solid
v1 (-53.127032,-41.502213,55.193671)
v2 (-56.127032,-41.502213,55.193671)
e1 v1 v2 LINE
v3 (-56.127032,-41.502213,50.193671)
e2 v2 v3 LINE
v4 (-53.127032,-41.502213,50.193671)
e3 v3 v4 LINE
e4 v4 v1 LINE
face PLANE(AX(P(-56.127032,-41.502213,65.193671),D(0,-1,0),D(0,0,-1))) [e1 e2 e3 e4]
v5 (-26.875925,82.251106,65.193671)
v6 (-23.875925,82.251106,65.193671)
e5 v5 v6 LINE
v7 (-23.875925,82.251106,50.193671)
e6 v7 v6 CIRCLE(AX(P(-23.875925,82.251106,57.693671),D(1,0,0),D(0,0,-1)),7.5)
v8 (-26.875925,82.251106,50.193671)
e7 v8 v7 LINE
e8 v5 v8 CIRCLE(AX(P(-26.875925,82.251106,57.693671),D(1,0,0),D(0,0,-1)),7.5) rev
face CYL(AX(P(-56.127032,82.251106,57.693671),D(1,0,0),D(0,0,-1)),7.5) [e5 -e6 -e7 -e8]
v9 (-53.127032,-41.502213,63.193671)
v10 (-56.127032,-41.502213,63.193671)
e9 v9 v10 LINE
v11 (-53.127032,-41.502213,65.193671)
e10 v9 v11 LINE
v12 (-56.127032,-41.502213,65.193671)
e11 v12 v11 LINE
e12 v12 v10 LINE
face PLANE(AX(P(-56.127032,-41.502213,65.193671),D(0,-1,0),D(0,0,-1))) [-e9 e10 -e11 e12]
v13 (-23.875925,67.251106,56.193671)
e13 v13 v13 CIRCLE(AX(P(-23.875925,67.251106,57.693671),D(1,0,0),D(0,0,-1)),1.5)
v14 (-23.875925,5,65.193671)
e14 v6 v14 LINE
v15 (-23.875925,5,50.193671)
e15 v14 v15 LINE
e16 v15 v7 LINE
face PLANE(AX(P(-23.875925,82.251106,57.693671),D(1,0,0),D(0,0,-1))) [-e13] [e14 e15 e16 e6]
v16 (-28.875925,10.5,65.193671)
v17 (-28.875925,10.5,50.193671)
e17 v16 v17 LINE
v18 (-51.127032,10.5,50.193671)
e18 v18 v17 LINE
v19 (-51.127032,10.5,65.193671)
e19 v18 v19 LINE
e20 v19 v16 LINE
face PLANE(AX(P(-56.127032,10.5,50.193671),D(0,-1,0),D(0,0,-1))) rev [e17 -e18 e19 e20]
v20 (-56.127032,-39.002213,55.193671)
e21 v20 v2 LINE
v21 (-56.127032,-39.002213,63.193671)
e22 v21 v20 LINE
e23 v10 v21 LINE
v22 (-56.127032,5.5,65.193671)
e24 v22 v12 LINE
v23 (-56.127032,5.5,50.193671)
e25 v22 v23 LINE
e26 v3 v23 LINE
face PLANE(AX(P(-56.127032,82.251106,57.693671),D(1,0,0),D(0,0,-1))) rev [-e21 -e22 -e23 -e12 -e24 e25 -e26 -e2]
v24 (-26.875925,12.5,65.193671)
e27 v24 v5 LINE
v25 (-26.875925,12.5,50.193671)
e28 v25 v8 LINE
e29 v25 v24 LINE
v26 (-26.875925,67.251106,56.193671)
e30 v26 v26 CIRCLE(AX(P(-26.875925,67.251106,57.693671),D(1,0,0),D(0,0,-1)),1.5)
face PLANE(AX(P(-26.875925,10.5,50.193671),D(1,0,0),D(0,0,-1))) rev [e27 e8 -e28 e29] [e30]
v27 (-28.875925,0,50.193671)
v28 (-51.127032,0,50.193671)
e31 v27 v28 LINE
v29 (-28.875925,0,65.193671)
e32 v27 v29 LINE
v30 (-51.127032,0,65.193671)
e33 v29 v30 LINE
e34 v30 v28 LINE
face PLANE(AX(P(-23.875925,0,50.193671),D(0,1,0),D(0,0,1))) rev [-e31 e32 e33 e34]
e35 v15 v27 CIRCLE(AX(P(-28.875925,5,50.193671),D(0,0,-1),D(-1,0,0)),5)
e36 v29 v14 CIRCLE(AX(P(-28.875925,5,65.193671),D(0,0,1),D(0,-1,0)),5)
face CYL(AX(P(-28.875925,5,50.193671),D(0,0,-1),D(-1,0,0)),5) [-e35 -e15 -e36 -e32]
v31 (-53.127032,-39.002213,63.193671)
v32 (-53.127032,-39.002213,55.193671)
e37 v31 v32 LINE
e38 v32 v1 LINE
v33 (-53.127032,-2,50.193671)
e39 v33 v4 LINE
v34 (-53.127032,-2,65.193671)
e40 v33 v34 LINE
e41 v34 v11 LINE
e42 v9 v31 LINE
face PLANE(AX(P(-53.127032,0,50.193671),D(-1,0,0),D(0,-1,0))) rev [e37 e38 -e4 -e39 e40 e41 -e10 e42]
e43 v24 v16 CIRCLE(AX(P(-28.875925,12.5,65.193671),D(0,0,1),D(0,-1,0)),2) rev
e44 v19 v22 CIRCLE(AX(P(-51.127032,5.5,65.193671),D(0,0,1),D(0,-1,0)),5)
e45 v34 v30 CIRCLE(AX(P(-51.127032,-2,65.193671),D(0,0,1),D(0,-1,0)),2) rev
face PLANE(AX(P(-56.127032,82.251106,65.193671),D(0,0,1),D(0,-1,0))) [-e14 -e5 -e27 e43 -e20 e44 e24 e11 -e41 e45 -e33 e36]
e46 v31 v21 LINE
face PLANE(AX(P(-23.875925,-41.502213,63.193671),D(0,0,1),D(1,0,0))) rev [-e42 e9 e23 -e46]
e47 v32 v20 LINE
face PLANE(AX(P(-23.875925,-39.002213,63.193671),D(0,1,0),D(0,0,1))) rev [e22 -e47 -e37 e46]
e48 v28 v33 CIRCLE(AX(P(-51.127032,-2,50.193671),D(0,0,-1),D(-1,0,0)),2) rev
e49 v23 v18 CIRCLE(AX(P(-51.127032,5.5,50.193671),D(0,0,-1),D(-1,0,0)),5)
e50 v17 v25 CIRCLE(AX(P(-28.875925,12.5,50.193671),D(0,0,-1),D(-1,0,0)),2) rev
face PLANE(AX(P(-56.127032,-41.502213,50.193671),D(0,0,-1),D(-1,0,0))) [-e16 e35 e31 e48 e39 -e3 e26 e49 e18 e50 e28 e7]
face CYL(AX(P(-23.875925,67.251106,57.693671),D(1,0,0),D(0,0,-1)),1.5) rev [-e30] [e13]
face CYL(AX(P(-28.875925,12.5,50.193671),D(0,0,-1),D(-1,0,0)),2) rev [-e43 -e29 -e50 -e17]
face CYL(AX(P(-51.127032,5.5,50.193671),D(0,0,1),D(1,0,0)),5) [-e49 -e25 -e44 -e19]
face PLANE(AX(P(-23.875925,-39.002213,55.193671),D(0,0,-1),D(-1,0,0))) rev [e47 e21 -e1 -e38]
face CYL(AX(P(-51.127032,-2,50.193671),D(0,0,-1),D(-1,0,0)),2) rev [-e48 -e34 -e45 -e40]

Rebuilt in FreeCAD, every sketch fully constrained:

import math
import FreeCAD as App
import Part
import Sketcher
from FreeCAD import Vector
Q = App.Units.Quantity


def edges_at(feature, points):
    """Names of the edges that pass closest to the given points."""
    edges = feature.Shape.Edges
    near = lambda p: min(range(len(edges)), key=lambda i: edges[i].distToShape(Part.Vertex(*p))[0])
    return sorted({f"Edge{near(p) + 1}" for p in points})

doc = App.newDocument("Part")
body = doc.addObject("PartDesign::Body", "Body")

sketch1 = doc.addObject("Sketcher::SketchObject", "Sketch")
body.addObject(sketch1)
sketch1.AttachmentSupport = (doc.YZ_Plane, [""])
sketch1.MapMode = "FlatFace"
sketch1.AttachmentOffset = App.Placement(Vector(0, 0, -23.875925), App.Rotation())
sketch1.addGeometry(Part.LineSegment(Vector(82, 65, 0), Vector(-42, 65, 0)), False)
sketch1.addGeometry(Part.LineSegment(Vector(-42, 65, 0), Vector(-42, 50, 0)), False)
sketch1.addGeometry(Part.LineSegment(Vector(-42, 50, 0), Vector(82, 50, 0)), False)
sketch1.addGeometry(Part.ArcOfCircle(Part.Circle(Vector(82, 58, 0), Vector(0, 0, 1), 8), math.radians(-90), math.radians(90)), False)
sketch1.addConstraint(Sketcher.Constraint("Coincident", 0, 2, 1, 1))
sketch1.addConstraint(Sketcher.Constraint("Coincident", 1, 2, 2, 1))
sketch1.addConstraint(Sketcher.Constraint("Tangent", 2, 2, 3, 1))
sketch1.addConstraint(Sketcher.Constraint("Tangent", 3, 2, 0, 1))
sketch1.addConstraint(Sketcher.Constraint("Horizontal", 0))
sketch1.addConstraint(Sketcher.Constraint("Vertical", 1))
sketch1.addConstraint(Sketcher.Constraint("Horizontal", 2))
sketch1.addConstraint(Sketcher.Constraint("Radius", 3, Q("7.5 mm")))
sketch1.addConstraint(Sketcher.Constraint("DistanceX", 0, 2, 0, 1, Q("123.753319 mm")))
sketch1.addConstraint(Sketcher.Constraint("DistanceY", -1, 1, 3, 3, Q("57.693671 mm")))
sketch1.addConstraint(Sketcher.Constraint("DistanceX", -1, 1, 3, 3, Q("82.251106 mm")))
pad1 = doc.addObject("PartDesign::Pad", "Pad")
body.addObject(pad1)
pad1.Profile = sketch1
pad1.Length = 32.251106
pad1.Reversed = True

sketch2 = doc.addObject("Sketcher::SketchObject", "Sketch001")
body.addObject(sketch2)
sketch2.AttachmentSupport = (doc.XY_Plane, [""])
sketch2.MapMode = "FlatFace"
sketch2.AttachmentOffset = App.Placement(Vector(0, 0, 65.193671), App.Rotation())
sketch2.addGeometry(Part.LineSegment(Vector(-53, 0, 0), Vector(-53, -42, 0)), False)
sketch2.addGeometry(Part.LineSegment(Vector(-53, -42, 0), Vector(-24, -42, 0)), False)
sketch2.addGeometry(Part.LineSegment(Vector(-24, -42, 0), Vector(-24, 0, 0)), False)
sketch2.addGeometry(Part.LineSegment(Vector(-24, 0, 0), Vector(-53, 0, 0)), False)
sketch2.addConstraint(Sketcher.Constraint("Coincident", 0, 2, 1, 1))
sketch2.addConstraint(Sketcher.Constraint("Coincident", 1, 2, 2, 1))
sketch2.addConstraint(Sketcher.Constraint("Coincident", 2, 2, 3, 1))
sketch2.addConstraint(Sketcher.Constraint("Coincident", 3, 2, 0, 1))
sketch2.addConstraint(Sketcher.Constraint("Vertical", 0))
sketch2.addConstraint(Sketcher.Constraint("Horizontal", 1))
sketch2.addConstraint(Sketcher.Constraint("Vertical", 2))
sketch2.addConstraint(Sketcher.Constraint("Horizontal", 3))
sketch2.addConstraint(Sketcher.Constraint("PointOnObject", 2, 2, -1))
sketch2.addConstraint(Sketcher.Constraint("DistanceX", 1, 1, 1, 2, Q("29.251106 mm")))
sketch2.addConstraint(Sketcher.Constraint("DistanceY", 0, 2, 0, 1, Q("41.502213 mm")))
sketch2.addConstraint(Sketcher.Constraint("DistanceX", 0, 2, -1, 1, Q("53.127032 mm")))
pocket1 = doc.addObject("PartDesign::Pocket", "Pocket")
body.addObject(pocket1)
pocket1.Profile = sketch2
pocket1.Type = "ThroughAll"

sketch3 = doc.addObject("Sketcher::SketchObject", "Sketch002")
body.addObject(sketch3)
sketch3.AttachmentSupport = (doc.XY_Plane, [""])
sketch3.MapMode = "FlatFace"
sketch3.AttachmentOffset = App.Placement(Vector(0, 0, 65.193671), App.Rotation())
sketch3.addGeometry(Part.LineSegment(Vector(-56, 90, 0), Vector(-56, 10, 0)), False)
sketch3.addGeometry(Part.LineSegment(Vector(-56, 10, 0), Vector(-27, 10, 0)), False)
sketch3.addGeometry(Part.LineSegment(Vector(-27, 10, 0), Vector(-27, 90, 0)), False)
sketch3.addGeometry(Part.LineSegment(Vector(-27, 90, 0), Vector(-56, 90, 0)), False)
sketch3.addConstraint(Sketcher.Constraint("Coincident", 0, 2, 1, 1))
sketch3.addConstraint(Sketcher.Constraint("Coincident", 1, 2, 2, 1))
sketch3.addConstraint(Sketcher.Constraint("Coincident", 2, 2, 3, 1))
sketch3.addConstraint(Sketcher.Constraint("Coincident", 3, 2, 0, 1))
sketch3.addConstraint(Sketcher.Constraint("Vertical", 0))
sketch3.addConstraint(Sketcher.Constraint("Horizontal", 1))
sketch3.addConstraint(Sketcher.Constraint("Vertical", 2))
sketch3.addConstraint(Sketcher.Constraint("Horizontal", 3))
sketch3.addConstraint(Sketcher.Constraint("DistanceY", -1, 1, 0, 2, Q("10.5 mm")))
sketch3.addConstraint(Sketcher.Constraint("DistanceX", 1, 1, 1, 2, Q("29.251106 mm")))
sketch3.addConstraint(Sketcher.Constraint("DistanceY", 0, 2, 0, 1, Q("79.251106 mm")))
sketch3.addConstraint(Sketcher.Constraint("DistanceX", 0, 2, -1, 1, Q("56.127032 mm")))
pocket2 = doc.addObject("PartDesign::Pocket", "Pocket001")
body.addObject(pocket2)
pocket2.Profile = sketch3
pocket2.Type = "ThroughAll"

sketch4 = doc.addObject("Sketcher::SketchObject", "Sketch003")
body.addObject(sketch4)
sketch4.AttachmentSupport = (doc.YZ_Plane, [""])
sketch4.MapMode = "FlatFace"
sketch4.AttachmentOffset = App.Placement(Vector(0, 0, -56.127032), App.Rotation())
sketch4.addGeometry(Part.LineSegment(Vector(-39, 55.2, 0), Vector(-41.5, 55.2, 0)), False)
sketch4.addGeometry(Part.LineSegment(Vector(-41.5, 55.2, 0), Vector(-41.5, 63.2, 0)), False)
sketch4.addGeometry(Part.LineSegment(Vector(-41.5, 63.2, 0), Vector(-39, 63.2, 0)), False)
sketch4.addGeometry(Part.LineSegment(Vector(-39, 63.2, 0), Vector(-39, 55.2, 0)), False)
sketch4.addConstraint(Sketcher.Constraint("Coincident", 0, 2, 1, 1))
sketch4.addConstraint(Sketcher.Constraint("Coincident", 1, 2, 2, 1))
sketch4.addConstraint(Sketcher.Constraint("Coincident", 2, 2, 3, 1))
sketch4.addConstraint(Sketcher.Constraint("Coincident", 3, 2, 0, 1))
sketch4.addConstraint(Sketcher.Constraint("Horizontal", 0))
sketch4.addConstraint(Sketcher.Constraint("Vertical", 1))
sketch4.addConstraint(Sketcher.Constraint("Horizontal", 2))
sketch4.addConstraint(Sketcher.Constraint("Vertical", 3))
sketch4.addConstraint(Sketcher.Constraint("DistanceY", 1, 1, 1, 2, Q("8 mm")))
sketch4.addConstraint(Sketcher.Constraint("DistanceX", 0, 2, 0, 1, Q("2.5 mm")))
sketch4.addConstraint(Sketcher.Constraint("DistanceY", -1, 1, 0, 2, Q("55.193671 mm")))
sketch4.addConstraint(Sketcher.Constraint("DistanceX", 0, 2, -1, 1, Q("41.502213 mm")))
pocket3 = doc.addObject("PartDesign::Pocket", "Pocket002")
body.addObject(pocket3)
pocket3.Profile = sketch4
pocket3.Type = "ThroughAll"
pocket3.Reversed = True

sketch5 = doc.addObject("Sketcher::SketchObject", "Sketch004")
body.addObject(sketch5)
sketch5.AttachmentSupport = (doc.YZ_Plane, [""])
sketch5.MapMode = "FlatFace"
sketch5.AttachmentOffset = App.Placement(Vector(0, 0, -23.875925), App.Rotation())
sketch5.addGeometry(Part.Circle(Vector(67.3, 57.7, 0), Vector(0, 0, 1), 1.5), False)
sketch5.addConstraint(Sketcher.Constraint("Diameter", 0, Q("3 mm")))
sketch5.addConstraint(Sketcher.Constraint("DistanceY", -1, 1, 0, 3, Q("57.693671 mm")))
sketch5.addConstraint(Sketcher.Constraint("DistanceX", -1, 1, 0, 3, Q("67.251106 mm")))
doc.recompute()
hole = doc.addObject("PartDesign::Hole", "Hole")
body.addObject(hole)
hole.Profile = sketch5
hole.ThreadType = "None"
hole.Diameter = 3
hole.DepthType = "Dimension"
hole.Depth = 32.251106
hole.DrillPoint = "Flat"
doc.recompute()

fillet = doc.addObject("PartDesign::Fillet", "Fillet")
body.addObject(fillet)
fillet.Base = (hole, edges_at(hole, [(-53.127, 0, 57.694), (-26.876, 10.5, 57.694)]))
fillet.Radius = 2
doc.recompute()

fillet2 = doc.addObject("PartDesign::Fillet", "Fillet001")
body.addObject(fillet2)
fillet2.Base = (fillet, edges_at(fillet, [(-23.876, 0, 57.694), (-56.127, 10.5, 57.694)]))
fillet2.Radius = 5

doc.recompute()
